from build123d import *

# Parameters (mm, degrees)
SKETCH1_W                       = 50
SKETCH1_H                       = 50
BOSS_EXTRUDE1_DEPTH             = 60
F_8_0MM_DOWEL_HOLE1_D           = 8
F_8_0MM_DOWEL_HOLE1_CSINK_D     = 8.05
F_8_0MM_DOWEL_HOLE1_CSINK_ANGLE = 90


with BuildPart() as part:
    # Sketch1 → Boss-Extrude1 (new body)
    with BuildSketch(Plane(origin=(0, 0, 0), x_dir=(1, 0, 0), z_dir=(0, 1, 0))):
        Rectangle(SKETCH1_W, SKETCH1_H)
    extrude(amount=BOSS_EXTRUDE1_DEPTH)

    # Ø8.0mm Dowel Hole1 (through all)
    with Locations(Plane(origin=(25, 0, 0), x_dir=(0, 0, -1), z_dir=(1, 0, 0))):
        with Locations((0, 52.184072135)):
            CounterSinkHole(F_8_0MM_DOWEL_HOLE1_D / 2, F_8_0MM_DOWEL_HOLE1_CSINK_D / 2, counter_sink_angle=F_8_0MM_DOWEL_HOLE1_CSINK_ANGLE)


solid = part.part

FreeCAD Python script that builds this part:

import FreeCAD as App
import Part
import Sketcher

V = App.Vector
Q = App.Units.Quantity


def add_polygon(sketch, points):
    """Adds a closed chain of lines whose ends are joined by coincident constraints."""
    first, n = sketch.GeometryCount, len(points)
    for a, b in zip(points, points[1:] + points[:1]):
        sketch.addGeometry(Part.LineSegment(App.Vector(*a, 0), App.Vector(*b, 0)), False)
    for i in range(n):
        sketch.addConstraint(Sketcher.Constraint("Coincident", first + i, 2, first + (i + 1) % n, 1))

doc = App.newDocument("Part")
body = doc.addObject("PartDesign::Body", "Body")

# Sketch on XZ plane
sketch1 = doc.addObject("Sketcher::SketchObject", "Sketch")
body.addObject(sketch1)
sketch1.AttachmentSupport = (doc.XZ_Plane, [""])
sketch1.MapMode = "FlatFace"
add_polygon(sketch1, [(-25, -25), (-25, 25), (25, 25), (25, -25)])  # lines 0-3
sketch1.addConstraint([
    Sketcher.Constraint("Vertical", 0),
    Sketcher.Constraint("Horizontal", 1),
    Sketcher.Constraint("Vertical", 2),
    Sketcher.Constraint("Horizontal", 3),
    Sketcher.Constraint("Symmetric", 0, 2, 2, 2, -1, 1),
    Sketcher.Constraint("Equal", 3, 0),
    Sketcher.Constraint("DistanceX", 1, 1, 1, 2, Q("50 mm")),
])
pad1 = doc.addObject("PartDesign::Pad", "Pad")
body.addObject(pad1)
pad1.Profile = sketch1
pad1.Length = 60
pad1.Reversed = True

# Sketch on YZ plane
sketch2 = doc.addObject("Sketcher::SketchObject", "Sketch001")
body.addObject(sketch2)
sketch2.AttachmentSupport = (doc.YZ_Plane, [""])
sketch2.MapMode = "FlatFace"
sketch2.AttachmentOffset = App.Placement(V(0, 0, 25), App.Rotation())
sketch2.addGeometry(Part.Circle(V(52.2, 0, 0), V(0, 0, 1), 4), False)
sketch2.addConstraint([
    Sketcher.Constraint("PointOnObject", 0, 3, -1),
    Sketcher.Constraint("Diameter", 0, Q("8 mm")),
    Sketcher.Constraint("DistanceX", -1, 1, 0, 3, Q("52.184072 mm")),
])
doc.recompute()
hole = doc.addObject("PartDesign::Hole", "Hole")
body.addObject(hole)
hole.Profile = sketch2
hole.ThreadType = "None"
hole.Diameter = 8
hole.DepthType = "ThroughAll"
hole.HoleCutType = "Countersink"
hole.HoleCutDiameter = 8.05
hole.HoleCutCountersinkAngle = 90

doc.recompute()
